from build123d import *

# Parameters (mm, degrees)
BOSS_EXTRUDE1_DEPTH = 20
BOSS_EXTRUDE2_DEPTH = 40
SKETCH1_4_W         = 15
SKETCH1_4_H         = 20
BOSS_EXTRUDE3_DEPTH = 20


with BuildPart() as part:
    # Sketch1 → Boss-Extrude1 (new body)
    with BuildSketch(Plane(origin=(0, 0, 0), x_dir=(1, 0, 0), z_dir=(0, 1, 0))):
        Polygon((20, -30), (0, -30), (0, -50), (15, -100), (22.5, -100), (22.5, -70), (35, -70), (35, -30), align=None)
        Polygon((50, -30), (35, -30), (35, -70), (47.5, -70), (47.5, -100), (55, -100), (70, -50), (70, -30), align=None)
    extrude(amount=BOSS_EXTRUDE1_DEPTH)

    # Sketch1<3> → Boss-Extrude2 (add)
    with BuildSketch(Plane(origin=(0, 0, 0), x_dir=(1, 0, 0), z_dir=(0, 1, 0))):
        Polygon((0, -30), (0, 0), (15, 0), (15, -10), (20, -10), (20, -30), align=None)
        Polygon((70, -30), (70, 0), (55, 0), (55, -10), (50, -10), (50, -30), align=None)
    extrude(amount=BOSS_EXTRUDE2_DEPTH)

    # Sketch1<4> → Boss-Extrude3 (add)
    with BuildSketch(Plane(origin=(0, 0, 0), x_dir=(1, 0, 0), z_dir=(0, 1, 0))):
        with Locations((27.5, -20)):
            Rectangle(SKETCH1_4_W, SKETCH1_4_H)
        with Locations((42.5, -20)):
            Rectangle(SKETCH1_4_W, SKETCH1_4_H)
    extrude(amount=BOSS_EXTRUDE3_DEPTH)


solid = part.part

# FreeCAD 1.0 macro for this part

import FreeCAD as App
import Part
import Sketcher

doc = App.newDocument("Part")
body = doc.addObject("PartDesign::Body", "Body")

# Sketch on XZ plane
sketch1 = doc.addObject("Sketcher::SketchObject", "Sketch")
body.addObject(sketch1)
sketch1.AttachmentSupport = (doc.XZ_Plane, [""])
sketch1.MapMode = "FlatFace"
sketch1.addGeometry(Part.LineSegment(App.Vector(0, 30, 0), App.Vector(0, 50, 0)), False)
sketch1.addGeometry(Part.LineSegment(App.Vector(0, 50, 0), App.Vector(15, 100, 0)), False)
sketch1.addGeometry(Part.LineSegment(App.Vector(15, 100, 0), App.Vector(22, 100, 0)), False)
sketch1.addGeometry(Part.LineSegment(App.Vector(22, 100, 0), App.Vector(22, 70, 0)), False)
sketch1.addGeometry(Part.LineSegment(App.Vector(22, 70, 0), App.Vector(48, 70, 0)), False)
sketch1.addGeometry(Part.LineSegment(App.Vector(48, 70, 0), App.Vector(48, 100, 0)), False)
sketch1.addGeometry(Part.LineSegment(App.Vector(48, 100, 0), App.Vector(55, 100, 0)), False)
sketch1.addGeometry(Part.LineSegment(App.Vector(55, 100, 0), App.Vector(70, 50, 0)), False)
sketch1.addGeometry(Part.LineSegment(App.Vector(70, 50, 0), App.Vector(70, 30, 0)), False)
sketch1.addGeometry(Part.LineSegment(App.Vector(70, 30, 0), App.Vector(0, 30, 0)), False)
sketch1.addConstraint(Sketcher.Constraint("Coincident", 0, 2, 1, 1))
sketch1.addConstraint(Sketcher.Constraint("Coincident", 1, 2, 2, 1))
sketch1.addConstraint(Sketcher.Constraint("Coincident", 2, 2, 3, 1))
sketch1.addConstraint(Sketcher.Constraint("Coincident", 3, 2, 4, 1))
sketch1.addConstraint(Sketcher.Constraint("Coincident", 4, 2, 5, 1))
sketch1.addConstraint(Sketcher.Constraint("Coincident", 5, 2, 6, 1))
sketch1.addConstraint(Sketcher.Constraint("Coincident", 6, 2, 7, 1))
sketch1.addConstraint(Sketcher.Constraint("Coincident", 7, 2, 8, 1))
sketch1.addConstraint(Sketcher.Constraint("Coincident", 8, 2, 9, 1))
sketch1.addConstraint(Sketcher.Constraint("Coincident", 9, 2, 0, 1))
sketch1.addConstraint(Sketcher.Constraint("Vertical", 0))
sketch1.addConstraint(Sketcher.Constraint("Horizontal", 2))
sketch1.addConstraint(Sketcher.Constraint("Vertical", 3))
sketch1.addConstraint(Sketcher.Constraint("Horizontal", 4))
sketch1.addConstraint(Sketcher.Constraint("Vertical", 5))
sketch1.addConstraint(Sketcher.Constraint("Horizontal", 6))
sketch1.addConstraint(Sketcher.Constraint("Vertical", 8))
sketch1.addConstraint(Sketcher.Constraint("Horizontal", 9))
sketch1.addConstraint(Sketcher.Constraint("PointOnObject", 0, 2, -2))
sketch1.addConstraint(Sketcher.Constraint("Horizontal", 2, 2, 5, 2))
sketch1.addConstraint(Sketcher.Constraint("Horizontal", 0, 2, 7, 2))
sketch1.addConstraint(Sketcher.Constraint("Equal", 2, 6))
sketch1.addConstraint(Sketcher.Constraint("Equal", 1, 7))
sketch1.addConstraint(Sketcher.Constraint("DistanceX", 4, 1, 4, 2, 25.0))
sketch1.addConstraint(Sketcher.Constraint("DistanceX", 9, 2, 9, 1, 70.0))
sketch1.addConstraint(Sketcher.Constraint("DistanceY", 0, 1, 0, 2, 20.0))
sketch1.addConstraint(Sketcher.Constraint("DistanceY", 3, 2, 3, 1, 30.0))
sketch1.addConstraint(Sketcher.Constraint("DistanceX", 2, 1, 2, 2, 7.5))
sketch1.addConstraint(Sketcher.Constraint("DistanceY", -1, 1, 0, 2, 50.0))
sketch1.addConstraint(Sketcher.Constraint("DistanceY", -1, 1, 1, 2, 100.0))
pad1 = doc.addObject("PartDesign::Pad", "Pad")
body.addObject(pad1)
pad1.Profile = sketch1
pad1.Length = 20
pad1.Reversed = True

# Sketch on XZ plane
sketch2 = doc.addObject("Sketcher::SketchObject", "Sketch001")
body.addObject(sketch2)
sketch2.AttachmentSupport = (doc.XZ_Plane, [""])
sketch2.MapMode = "FlatFace"
sketch2.addGeometry(Part.LineSegment(App.Vector(0, 0, 0), App.Vector(0, 30, 0)), False)
sketch2.addGeometry(Part.LineSegment(App.Vector(0, 30, 0), App.Vector(20, 30, 0)), False)
sketch2.addGeometry(Part.LineSegment(App.Vector(20, 30, 0), App.Vector(20, 10, 0)), False)
sketch2.addGeometry(Part.LineSegment(App.Vector(20, 10, 0), App.Vector(15, 10, 0)), False)
sketch2.addGeometry(Part.LineSegment(App.Vector(15, 10, 0), App.Vector(15, 0, 0)), False)
sketch2.addGeometry(Part.LineSegment(App.Vector(15, 0, 0), App.Vector(0, 0, 0)), False)
sketch2.addGeometry(Part.LineSegment(App.Vector(70, 30, 0), App.Vector(70, 0, 0)), False)
sketch2.addGeometry(Part.LineSegment(App.Vector(70, 0, 0), App.Vector(55, 0, 0)), False)
sketch2.addGeometry(Part.LineSegment(App.Vector(55, 0, 0), App.Vector(55, 10, 0)), False)
sketch2.addGeometry(Part.LineSegment(App.Vector(55, 10, 0), App.Vector(50, 10, 0)), False)
sketch2.addGeometry(Part.LineSegment(App.Vector(50, 10, 0), App.Vector(50, 30, 0)), False)
sketch2.addGeometry(Part.LineSegment(App.Vector(50, 30, 0), App.Vector(70, 30, 0)), False)
sketch2.addConstraint(Sketcher.Constraint("Coincident", 0, 2, 1, 1))
sketch2.addConstraint(Sketcher.Constraint("Coincident", 1, 2, 2, 1))
sketch2.addConstraint(Sketcher.Constraint("Coincident", 2, 2, 3, 1))
sketch2.addConstraint(Sketcher.Constraint("Coincident", 3, 2, 4, 1))
sketch2.addConstraint(Sketcher.Constraint("Coincident", 4, 2, 5, 1))
sketch2.addConstraint(Sketcher.Constraint("Coincident", 5, 2, 0, 1))
sketch2.addConstraint(Sketcher.Constraint("Coincident", 6, 2, 7, 1))
sketch2.addConstraint(Sketcher.Constraint("Coincident", 7, 2, 8, 1))
sketch2.addConstraint(Sketcher.Constraint("Coincident", 8, 2, 9, 1))
sketch2.addConstraint(Sketcher.Constraint("Coincident", 9, 2, 10, 1))
sketch2.addConstraint(Sketcher.Constraint("Coincident", 10, 2, 11, 1))
sketch2.addConstraint(Sketcher.Constraint("Coincident", 11, 2, 6, 1))
sketch2.addConstraint(Sketcher.Constraint("Vertical", 0))
sketch2.addConstraint(Sketcher.Constraint("Horizontal", 1))
sketch2.addConstraint(Sketcher.Constraint("Vertical", 2))
sketch2.addConstraint(Sketcher.Constraint("Horizontal", 3))
sketch2.addConstraint(Sketcher.Constraint("Vertical", 4))
sketch2.addConstraint(Sketcher.Constraint("Horizontal", 5))
sketch2.addConstraint(Sketcher.Constraint("Vertical", 6))
sketch2.addConstraint(Sketcher.Constraint("Horizontal", 7))
sketch2.addConstraint(Sketcher.Constraint("Vertical", 8))
sketch2.addConstraint(Sketcher.Constraint("Horizontal", 9))
sketch2.addConstraint(Sketcher.Constraint("Vertical", 10))
sketch2.addConstraint(Sketcher.Constraint("Horizontal", 11))
sketch2.addConstraint(Sketcher.Constraint("Coincident", 5, 2, -1, 1))
sketch2.addConstraint(Sketcher.Constraint("PointOnObject", 6, 2, -1))
sketch2.addConstraint(Sketcher.Constraint("Horizontal", 3, 2, 8, 2))
sketch2.addConstraint(Sketcher.Constraint("Horizontal", 1, 2, 10, 2))
sketch2.addConstraint(Sketcher.Constraint("Equal", 5, 7))
sketch2.addConstraint(Sketcher.Constraint("Equal", 3, 9))
sketch2.addConstraint(Sketcher.Constraint("Equal", 11, 2))
sketch2.addConstraint(Sketcher.Constraint("DistanceX", 1, 1, 1, 2, 20.0))
sketch2.addConstraint(Sketcher.Constraint("DistanceX", 3, 2, 3, 1, 5.0))
sketch2.addConstraint(Sketcher.Constraint("DistanceY", 0, 1, 0, 2, 30.0))
sketch2.addConstraint(Sketcher.Constraint("DistanceX", -1, 1, 6, 2, 70.0))
pad2 = doc.addObject("PartDesign::Pad", "Pad001")
body.addObject(pad2)
pad2.Profile = sketch2
pad2.Length = 40
pad2.Reversed = True

# Sketch on XZ plane
sketch3 = doc.addObject("Sketcher::SketchObject", "Sketch002")
body.addObject(sketch3)
sketch3.AttachmentSupport = (doc.XZ_Plane, [""])
sketch3.MapMode = "FlatFace"
sketch3.addGeometry(Part.LineSegment(App.Vector(20, 10, 0), App.Vector(20, 30, 0)), False)
sketch3.addGeometry(Part.LineSegment(App.Vector(20, 30, 0), App.Vector(50, 30, 0)), False)
sketch3.addGeometry(Part.LineSegment(App.Vector(50, 30, 0), App.Vector(50, 10, 0)), False)
sketch3.addGeometry(Part.LineSegment(App.Vector(50, 10, 0), App.Vector(20, 10, 0)), False)
sketch3.addConstraint(Sketcher.Constraint("Coincident", 0, 2, 1, 1))
sketch3.addConstraint(Sketcher.Constraint("Coincident", 1, 2, 2, 1))
sketch3.addConstraint(Sketcher.Constraint("Coincident", 2, 2, 3, 1))
sketch3.addConstraint(Sketcher.Constraint("Coincident", 3, 2, 0, 1))
sketch3.addConstraint(Sketcher.Constraint("Vertical", 0))
sketch3.addConstraint(Sketcher.Constraint("Horizontal", 1))
sketch3.addConstraint(Sketcher.Constraint("Vertical", 2))
sketch3.addConstraint(Sketcher.Constraint("Horizontal", 3))
sketch3.addConstraint(Sketcher.Constraint("DistanceX", 1, 1, 1, 2, 30.0))
sketch3.addConstraint(Sketcher.Constraint("DistanceY", 0, 1, 0, 2, 20.0))
sketch3.addConstraint(Sketcher.Constraint("DistanceX", -1, 1, 0, 2, 20.0))
sketch3.addConstraint(Sketcher.Constraint("DistanceY", -1, 1, 0, 2, 30.0))
pad3 = doc.addObject("PartDesign::Pad", "Pad002")
body.addObject(pad3)
pad3.Profile = sketch3
pad3.Length = 20
pad3.Reversed = True

doc.recompute()
